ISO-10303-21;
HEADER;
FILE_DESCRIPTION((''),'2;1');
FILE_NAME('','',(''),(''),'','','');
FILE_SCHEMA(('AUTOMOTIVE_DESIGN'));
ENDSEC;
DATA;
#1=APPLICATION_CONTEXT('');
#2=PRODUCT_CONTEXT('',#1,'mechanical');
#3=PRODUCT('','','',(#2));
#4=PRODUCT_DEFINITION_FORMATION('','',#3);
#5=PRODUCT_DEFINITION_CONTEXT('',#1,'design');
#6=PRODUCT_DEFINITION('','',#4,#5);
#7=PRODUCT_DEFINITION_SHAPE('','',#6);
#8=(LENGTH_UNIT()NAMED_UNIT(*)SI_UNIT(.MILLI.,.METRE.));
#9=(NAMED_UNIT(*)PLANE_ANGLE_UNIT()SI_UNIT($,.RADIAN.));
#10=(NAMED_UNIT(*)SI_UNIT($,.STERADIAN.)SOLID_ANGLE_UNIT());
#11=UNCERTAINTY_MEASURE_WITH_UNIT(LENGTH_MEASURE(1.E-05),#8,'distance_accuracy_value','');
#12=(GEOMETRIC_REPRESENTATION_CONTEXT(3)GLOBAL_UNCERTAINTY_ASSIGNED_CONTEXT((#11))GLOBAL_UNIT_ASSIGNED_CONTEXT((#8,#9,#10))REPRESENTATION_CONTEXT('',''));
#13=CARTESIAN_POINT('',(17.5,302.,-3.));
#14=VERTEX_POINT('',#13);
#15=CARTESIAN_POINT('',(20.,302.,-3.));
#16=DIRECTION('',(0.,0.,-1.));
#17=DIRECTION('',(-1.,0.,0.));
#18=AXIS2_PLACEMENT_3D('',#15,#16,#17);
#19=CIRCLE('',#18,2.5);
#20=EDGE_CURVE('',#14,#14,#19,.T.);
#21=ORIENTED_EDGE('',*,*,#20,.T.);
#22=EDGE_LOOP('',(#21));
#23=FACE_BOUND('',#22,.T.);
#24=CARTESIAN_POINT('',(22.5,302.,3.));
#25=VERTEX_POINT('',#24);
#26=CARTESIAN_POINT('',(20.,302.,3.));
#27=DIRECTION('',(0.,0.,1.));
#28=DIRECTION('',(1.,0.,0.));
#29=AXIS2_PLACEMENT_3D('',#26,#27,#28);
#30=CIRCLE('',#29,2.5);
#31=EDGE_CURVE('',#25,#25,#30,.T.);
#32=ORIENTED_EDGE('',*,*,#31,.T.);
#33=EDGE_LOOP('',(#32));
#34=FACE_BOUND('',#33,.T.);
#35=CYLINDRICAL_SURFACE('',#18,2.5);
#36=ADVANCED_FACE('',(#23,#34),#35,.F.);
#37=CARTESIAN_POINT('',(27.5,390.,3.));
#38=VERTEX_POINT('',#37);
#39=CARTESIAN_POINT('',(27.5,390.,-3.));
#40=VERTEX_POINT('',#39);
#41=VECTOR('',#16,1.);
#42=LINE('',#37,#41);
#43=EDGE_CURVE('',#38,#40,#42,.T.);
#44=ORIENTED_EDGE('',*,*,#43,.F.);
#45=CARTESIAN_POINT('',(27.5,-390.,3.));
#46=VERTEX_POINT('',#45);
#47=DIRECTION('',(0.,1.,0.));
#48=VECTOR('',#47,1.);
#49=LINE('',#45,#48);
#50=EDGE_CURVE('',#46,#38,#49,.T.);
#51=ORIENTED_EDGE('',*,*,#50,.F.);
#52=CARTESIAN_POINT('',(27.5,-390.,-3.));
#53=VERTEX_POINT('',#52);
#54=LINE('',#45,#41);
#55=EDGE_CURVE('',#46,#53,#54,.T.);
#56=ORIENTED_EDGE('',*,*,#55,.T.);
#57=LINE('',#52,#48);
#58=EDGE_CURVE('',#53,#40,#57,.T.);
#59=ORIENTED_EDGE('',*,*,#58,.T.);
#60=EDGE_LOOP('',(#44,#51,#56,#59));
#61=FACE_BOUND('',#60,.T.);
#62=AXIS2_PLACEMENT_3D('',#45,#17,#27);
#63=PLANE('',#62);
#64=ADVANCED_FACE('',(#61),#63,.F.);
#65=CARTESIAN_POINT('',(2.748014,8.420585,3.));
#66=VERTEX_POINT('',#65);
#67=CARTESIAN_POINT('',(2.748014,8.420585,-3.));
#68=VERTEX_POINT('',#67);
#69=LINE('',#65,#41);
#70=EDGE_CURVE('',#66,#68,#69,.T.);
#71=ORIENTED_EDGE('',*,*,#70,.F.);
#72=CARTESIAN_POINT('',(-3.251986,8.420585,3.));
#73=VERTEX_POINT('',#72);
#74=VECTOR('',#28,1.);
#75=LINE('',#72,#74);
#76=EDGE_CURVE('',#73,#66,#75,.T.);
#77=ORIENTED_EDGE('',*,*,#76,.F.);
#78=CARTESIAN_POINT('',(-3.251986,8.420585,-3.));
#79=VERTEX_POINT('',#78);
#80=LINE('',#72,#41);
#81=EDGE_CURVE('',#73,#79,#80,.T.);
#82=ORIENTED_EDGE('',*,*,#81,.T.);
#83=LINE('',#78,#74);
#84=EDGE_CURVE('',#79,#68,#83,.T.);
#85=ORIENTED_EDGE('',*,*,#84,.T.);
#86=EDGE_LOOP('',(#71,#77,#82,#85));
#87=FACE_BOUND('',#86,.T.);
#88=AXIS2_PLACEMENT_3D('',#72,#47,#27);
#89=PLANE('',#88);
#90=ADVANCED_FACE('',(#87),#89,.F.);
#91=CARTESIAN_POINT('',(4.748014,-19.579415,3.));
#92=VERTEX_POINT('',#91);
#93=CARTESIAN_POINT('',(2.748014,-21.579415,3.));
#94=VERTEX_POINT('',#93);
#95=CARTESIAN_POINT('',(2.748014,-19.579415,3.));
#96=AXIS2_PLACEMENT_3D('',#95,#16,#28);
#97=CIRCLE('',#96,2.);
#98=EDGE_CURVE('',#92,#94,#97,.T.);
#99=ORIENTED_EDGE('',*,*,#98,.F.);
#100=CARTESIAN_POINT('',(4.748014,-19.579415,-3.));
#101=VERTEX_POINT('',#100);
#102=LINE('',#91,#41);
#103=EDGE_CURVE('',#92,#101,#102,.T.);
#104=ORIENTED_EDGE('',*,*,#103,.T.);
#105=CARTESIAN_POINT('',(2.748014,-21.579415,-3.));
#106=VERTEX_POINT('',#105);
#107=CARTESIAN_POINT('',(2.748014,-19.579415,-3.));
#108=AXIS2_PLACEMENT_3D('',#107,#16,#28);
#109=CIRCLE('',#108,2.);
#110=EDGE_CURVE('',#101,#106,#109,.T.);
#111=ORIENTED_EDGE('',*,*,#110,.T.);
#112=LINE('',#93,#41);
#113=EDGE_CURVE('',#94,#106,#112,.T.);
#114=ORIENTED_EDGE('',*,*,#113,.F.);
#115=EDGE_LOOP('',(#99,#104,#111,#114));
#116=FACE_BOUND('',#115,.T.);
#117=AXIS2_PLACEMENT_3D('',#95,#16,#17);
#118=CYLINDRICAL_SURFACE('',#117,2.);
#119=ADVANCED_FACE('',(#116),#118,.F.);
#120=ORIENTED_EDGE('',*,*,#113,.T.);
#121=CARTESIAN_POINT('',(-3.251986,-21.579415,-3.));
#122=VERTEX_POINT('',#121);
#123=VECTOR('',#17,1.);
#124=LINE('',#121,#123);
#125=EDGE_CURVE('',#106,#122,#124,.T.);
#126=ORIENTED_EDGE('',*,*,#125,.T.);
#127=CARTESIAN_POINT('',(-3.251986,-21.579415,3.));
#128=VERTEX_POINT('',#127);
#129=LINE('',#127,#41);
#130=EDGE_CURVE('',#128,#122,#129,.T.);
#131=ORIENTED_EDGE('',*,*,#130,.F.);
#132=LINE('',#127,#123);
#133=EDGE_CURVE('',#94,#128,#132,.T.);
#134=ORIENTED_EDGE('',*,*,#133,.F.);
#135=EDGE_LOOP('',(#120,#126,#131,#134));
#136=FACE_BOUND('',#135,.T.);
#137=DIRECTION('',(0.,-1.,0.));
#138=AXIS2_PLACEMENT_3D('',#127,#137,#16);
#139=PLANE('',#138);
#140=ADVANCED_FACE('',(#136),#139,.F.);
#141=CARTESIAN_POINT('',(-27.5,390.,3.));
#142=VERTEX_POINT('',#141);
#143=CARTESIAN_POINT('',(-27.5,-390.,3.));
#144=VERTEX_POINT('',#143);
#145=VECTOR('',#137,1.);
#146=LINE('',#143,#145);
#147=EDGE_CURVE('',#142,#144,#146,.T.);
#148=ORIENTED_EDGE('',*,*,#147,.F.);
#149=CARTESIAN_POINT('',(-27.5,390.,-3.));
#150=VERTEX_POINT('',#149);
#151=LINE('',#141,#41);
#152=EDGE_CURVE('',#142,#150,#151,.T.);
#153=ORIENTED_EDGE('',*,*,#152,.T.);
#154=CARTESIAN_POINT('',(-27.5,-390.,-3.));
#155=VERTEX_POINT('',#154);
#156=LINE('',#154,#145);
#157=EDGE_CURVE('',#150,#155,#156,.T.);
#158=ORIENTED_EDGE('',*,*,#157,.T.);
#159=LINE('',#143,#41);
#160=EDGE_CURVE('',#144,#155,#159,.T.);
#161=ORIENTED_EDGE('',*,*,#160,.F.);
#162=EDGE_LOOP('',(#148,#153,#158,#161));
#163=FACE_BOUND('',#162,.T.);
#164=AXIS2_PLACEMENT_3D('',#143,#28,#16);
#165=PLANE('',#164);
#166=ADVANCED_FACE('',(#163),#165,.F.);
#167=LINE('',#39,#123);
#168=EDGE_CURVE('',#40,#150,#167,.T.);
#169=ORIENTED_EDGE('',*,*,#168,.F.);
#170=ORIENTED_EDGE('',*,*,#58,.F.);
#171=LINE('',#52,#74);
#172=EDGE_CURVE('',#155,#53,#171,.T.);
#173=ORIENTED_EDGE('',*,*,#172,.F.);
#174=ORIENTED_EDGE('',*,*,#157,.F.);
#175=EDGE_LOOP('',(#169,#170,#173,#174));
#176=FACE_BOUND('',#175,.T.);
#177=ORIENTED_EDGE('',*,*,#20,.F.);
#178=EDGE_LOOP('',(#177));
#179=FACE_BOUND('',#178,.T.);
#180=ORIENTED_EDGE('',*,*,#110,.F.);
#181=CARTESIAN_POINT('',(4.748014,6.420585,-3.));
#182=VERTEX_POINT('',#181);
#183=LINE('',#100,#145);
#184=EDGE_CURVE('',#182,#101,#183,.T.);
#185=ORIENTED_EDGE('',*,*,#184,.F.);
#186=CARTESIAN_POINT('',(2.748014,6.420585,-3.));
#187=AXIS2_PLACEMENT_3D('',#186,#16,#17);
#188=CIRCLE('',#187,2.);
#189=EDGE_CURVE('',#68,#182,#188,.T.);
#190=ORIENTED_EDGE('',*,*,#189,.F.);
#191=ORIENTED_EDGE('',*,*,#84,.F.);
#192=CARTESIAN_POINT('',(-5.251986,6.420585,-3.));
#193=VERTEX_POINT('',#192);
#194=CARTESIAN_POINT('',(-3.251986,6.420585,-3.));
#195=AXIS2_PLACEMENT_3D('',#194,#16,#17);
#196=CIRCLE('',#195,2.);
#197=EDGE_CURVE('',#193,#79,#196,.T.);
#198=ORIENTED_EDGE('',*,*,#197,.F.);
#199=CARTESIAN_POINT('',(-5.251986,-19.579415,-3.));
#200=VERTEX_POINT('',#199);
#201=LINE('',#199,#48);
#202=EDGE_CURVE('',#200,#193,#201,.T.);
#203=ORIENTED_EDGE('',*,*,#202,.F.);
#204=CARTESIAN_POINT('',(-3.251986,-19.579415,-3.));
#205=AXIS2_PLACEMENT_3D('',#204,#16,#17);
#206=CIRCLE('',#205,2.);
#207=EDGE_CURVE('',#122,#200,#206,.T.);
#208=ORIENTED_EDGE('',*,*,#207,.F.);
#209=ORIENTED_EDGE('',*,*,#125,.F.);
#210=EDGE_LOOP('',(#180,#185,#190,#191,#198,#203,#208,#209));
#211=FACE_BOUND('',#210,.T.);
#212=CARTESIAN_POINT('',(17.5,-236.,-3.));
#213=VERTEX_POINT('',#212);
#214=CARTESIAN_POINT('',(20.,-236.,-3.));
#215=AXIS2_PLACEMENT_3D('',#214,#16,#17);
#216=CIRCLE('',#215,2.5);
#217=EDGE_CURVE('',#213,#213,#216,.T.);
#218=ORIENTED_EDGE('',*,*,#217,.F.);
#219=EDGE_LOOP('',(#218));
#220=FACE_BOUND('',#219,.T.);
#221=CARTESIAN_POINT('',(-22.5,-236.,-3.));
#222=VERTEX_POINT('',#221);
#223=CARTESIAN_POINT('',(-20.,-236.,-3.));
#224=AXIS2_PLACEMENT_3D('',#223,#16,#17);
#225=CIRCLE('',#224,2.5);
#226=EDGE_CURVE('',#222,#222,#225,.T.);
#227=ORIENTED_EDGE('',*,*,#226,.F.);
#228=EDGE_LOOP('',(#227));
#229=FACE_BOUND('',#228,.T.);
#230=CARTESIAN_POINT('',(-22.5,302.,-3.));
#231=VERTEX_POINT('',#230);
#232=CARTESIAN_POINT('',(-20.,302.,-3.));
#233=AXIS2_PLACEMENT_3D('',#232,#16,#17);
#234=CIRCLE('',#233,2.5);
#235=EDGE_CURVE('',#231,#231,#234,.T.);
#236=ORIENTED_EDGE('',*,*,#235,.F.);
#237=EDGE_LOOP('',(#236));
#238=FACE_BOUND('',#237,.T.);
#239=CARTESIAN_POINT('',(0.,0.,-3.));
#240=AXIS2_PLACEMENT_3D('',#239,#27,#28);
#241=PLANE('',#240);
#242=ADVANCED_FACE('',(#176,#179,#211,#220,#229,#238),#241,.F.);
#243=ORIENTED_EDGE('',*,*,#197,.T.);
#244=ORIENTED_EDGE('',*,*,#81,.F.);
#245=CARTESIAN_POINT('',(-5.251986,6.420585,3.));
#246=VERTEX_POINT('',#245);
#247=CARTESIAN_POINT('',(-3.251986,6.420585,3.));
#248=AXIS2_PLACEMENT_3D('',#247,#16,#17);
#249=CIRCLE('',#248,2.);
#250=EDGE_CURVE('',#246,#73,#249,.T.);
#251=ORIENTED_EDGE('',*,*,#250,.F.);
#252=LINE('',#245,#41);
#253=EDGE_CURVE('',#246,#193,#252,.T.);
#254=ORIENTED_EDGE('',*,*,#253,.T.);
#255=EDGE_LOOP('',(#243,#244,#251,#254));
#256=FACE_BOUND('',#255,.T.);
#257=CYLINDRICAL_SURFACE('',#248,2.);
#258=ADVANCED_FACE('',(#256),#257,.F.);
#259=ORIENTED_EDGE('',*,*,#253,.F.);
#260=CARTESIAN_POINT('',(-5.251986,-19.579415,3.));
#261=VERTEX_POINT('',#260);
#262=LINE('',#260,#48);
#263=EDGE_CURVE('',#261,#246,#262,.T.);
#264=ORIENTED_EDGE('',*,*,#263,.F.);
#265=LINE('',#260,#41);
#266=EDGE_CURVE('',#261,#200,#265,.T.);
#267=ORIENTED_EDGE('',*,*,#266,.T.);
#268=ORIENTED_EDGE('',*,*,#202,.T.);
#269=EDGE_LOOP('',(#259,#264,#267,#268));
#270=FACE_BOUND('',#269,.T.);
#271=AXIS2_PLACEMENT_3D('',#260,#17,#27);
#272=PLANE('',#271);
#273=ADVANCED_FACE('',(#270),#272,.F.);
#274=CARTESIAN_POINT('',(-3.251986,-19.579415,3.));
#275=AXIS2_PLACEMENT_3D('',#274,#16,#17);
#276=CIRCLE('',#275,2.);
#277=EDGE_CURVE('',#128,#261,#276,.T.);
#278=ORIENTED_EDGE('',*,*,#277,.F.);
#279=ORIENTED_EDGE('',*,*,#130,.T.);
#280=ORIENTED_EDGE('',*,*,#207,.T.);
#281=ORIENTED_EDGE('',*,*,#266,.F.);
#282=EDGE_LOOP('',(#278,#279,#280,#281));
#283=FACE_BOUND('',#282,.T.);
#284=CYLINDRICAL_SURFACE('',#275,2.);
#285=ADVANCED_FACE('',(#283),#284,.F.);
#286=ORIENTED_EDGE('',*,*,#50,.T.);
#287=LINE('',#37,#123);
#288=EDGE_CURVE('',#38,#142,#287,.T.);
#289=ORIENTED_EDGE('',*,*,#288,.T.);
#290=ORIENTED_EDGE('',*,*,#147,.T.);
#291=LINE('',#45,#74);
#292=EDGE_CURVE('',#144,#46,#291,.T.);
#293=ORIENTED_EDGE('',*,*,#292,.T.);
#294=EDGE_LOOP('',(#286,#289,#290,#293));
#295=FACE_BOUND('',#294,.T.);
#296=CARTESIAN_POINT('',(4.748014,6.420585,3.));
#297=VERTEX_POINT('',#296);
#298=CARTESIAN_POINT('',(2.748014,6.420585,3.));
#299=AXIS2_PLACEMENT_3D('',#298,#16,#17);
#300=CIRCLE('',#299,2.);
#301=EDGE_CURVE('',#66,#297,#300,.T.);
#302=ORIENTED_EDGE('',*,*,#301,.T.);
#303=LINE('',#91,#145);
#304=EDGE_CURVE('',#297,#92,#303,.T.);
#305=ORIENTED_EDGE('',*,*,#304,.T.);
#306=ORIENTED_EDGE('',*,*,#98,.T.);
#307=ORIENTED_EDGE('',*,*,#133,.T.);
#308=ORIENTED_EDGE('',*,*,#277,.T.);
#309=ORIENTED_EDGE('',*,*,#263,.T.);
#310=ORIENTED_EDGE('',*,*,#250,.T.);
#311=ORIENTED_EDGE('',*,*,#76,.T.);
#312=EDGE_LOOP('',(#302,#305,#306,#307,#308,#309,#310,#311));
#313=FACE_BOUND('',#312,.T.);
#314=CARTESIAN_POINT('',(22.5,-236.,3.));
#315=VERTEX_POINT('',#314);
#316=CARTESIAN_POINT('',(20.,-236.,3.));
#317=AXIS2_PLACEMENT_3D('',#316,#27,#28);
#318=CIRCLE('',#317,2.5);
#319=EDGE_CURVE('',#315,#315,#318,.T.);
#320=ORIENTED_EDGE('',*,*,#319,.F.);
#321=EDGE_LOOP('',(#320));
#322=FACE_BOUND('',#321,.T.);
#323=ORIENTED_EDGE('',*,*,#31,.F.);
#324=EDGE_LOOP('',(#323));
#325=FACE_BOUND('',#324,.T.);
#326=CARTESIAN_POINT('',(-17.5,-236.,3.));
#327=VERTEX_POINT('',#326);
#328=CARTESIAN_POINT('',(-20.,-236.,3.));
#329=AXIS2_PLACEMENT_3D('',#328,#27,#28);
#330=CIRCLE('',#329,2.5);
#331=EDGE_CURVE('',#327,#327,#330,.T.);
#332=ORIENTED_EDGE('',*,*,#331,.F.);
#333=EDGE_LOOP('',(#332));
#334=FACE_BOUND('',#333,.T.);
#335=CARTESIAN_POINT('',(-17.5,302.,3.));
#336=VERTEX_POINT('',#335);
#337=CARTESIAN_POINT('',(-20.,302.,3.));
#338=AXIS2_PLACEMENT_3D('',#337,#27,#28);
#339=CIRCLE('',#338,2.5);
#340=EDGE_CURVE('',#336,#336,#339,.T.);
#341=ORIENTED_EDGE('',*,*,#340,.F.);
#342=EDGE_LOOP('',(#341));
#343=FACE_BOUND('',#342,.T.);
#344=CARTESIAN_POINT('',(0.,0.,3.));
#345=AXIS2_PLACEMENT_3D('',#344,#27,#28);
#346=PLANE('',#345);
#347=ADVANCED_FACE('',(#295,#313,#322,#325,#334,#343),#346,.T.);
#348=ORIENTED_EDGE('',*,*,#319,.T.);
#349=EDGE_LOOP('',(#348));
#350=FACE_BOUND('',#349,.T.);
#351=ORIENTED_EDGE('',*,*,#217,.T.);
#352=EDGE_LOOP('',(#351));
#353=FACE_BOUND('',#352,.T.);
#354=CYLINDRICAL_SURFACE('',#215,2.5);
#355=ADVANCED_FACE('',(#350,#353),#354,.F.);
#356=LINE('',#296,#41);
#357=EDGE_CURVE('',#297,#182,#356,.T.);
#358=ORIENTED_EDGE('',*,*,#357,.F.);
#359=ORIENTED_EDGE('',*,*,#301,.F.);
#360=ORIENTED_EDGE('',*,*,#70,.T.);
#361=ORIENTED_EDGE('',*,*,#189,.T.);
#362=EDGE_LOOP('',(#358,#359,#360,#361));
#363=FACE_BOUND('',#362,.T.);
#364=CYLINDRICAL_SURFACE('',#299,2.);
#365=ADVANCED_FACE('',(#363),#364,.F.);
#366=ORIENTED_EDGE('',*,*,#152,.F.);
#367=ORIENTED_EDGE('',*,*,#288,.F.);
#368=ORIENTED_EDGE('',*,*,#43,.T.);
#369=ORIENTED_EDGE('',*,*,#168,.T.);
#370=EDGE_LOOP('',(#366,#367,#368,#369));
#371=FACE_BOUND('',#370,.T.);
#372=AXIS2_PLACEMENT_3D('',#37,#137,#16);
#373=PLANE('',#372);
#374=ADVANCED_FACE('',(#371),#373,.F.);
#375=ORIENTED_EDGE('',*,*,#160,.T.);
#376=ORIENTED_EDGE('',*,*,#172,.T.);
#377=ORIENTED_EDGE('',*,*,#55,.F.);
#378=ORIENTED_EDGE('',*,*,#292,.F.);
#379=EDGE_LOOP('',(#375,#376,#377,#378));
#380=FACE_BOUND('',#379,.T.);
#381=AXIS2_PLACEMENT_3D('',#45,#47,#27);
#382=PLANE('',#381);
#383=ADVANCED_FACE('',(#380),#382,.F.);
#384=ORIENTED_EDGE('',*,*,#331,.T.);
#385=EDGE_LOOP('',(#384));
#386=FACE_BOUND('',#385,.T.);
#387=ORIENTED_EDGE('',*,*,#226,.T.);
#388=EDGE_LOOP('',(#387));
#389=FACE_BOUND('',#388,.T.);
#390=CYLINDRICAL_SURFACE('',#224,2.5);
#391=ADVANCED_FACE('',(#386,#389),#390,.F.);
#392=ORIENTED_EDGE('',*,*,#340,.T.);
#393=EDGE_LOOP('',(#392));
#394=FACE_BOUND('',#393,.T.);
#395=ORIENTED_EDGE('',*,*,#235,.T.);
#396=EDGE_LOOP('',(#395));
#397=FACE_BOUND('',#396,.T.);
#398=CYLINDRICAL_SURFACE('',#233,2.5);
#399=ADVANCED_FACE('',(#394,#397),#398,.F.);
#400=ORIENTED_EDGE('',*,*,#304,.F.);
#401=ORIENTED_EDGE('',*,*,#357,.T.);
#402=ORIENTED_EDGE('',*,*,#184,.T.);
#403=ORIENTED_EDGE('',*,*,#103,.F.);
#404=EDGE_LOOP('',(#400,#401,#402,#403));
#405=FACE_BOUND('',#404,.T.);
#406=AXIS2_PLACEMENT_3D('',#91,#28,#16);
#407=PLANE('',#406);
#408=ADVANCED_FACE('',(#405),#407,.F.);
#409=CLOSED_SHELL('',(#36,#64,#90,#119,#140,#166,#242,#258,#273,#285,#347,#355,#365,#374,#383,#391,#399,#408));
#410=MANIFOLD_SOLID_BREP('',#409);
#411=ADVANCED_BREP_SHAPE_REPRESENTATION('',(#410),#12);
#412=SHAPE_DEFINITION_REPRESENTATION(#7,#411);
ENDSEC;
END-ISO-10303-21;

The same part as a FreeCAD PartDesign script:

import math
import FreeCAD as App
import Part
import Sketcher

V = App.Vector
Q = App.Units.Quantity


def add_polygon(sketch, points):
    """Adds a closed chain of lines whose ends are joined by coincident constraints."""
    first, n = sketch.GeometryCount, len(points)
    for a, b in zip(points, points[1:] + points[:1]):
        sketch.addGeometry(Part.LineSegment(App.Vector(*a, 0), App.Vector(*b, 0)), False)
    for i in range(n):
        sketch.addConstraint(Sketcher.Constraint("Coincident", first + i, 2, first + (i + 1) % n, 1))

doc = App.newDocument("Part")
params = doc.addObject("Spreadsheet::Sheet", "Params")
for row, (alias, value) in enumerate([
    ("sketch1_width", "55 mm"),
    ("sketch1_height", "780 mm"),
    ("pad1_length", "6 mm"),
    ("sketch2_radius", "2 mm"),
    ("sketch2_width", "6 mm"),
    ("sketch2_height", "26 mm"),
    ("sketch3_diameter", "5 mm"),
    ("hole_diameter", "5 mm"),
    ("hole_depth", "17 mm"),
], start=1):
    params.set(f"A{row}", alias)
    params.set(f"B{row}", "=" + value)
    params.setAlias(f"B{row}", alias)

body = doc.addObject("PartDesign::Body", "Body")

sketch1 = body.newObject("Sketcher::SketchObject", "Sketch")
sketch1.AttachmentSupport = (doc.getObject("XY_Plane"), [""])
sketch1.MapMode = "FlatFace"
add_polygon(sketch1, [(-28, 390), (-28, -390), (28, -390), (28, 390)])
sketch1.addConstraint(Sketcher.Constraint("Vertical", 0))
sketch1.addConstraint(Sketcher.Constraint("Horizontal", 1))
sketch1.addConstraint(Sketcher.Constraint("Vertical", 2))
sketch1.addConstraint(Sketcher.Constraint("Horizontal", 3))
sketch1.addConstraint(Sketcher.Constraint("Symmetric", 0, 2, 2, 2, -1, 1))
sketch1.addConstraint(Sketcher.Constraint("DistanceX", 1, 1, 1, 2, Q("55 mm")))
sketch1.addConstraint(Sketcher.Constraint("DistanceY", 0, 2, 0, 1, Q("780 mm")))
sketch1.setExpression("Constraints[9]", "Params.sketch1_width")
sketch1.setExpression("Constraints[10]", "Params.sketch1_height")
pad1 = body.newObject("PartDesign::Pad", "Pad")
pad1.Profile = sketch1
pad1.setExpression("Length", "Params.pad1_length")
pad1.Midplane = True

sketch2 = body.newObject("Sketcher::SketchObject", "Sketch001")
sketch2.AttachmentSupport = (doc.getObject("XY_Plane"), [""])
sketch2.MapMode = "FlatFace"
sketch2.AttachmentOffset = App.Placement(V(0, 0, -3), App.Rotation())
sketch2.addGeometry(Part.LineSegment(V(2.7, -21.6, 0), V(-3.3, -21.6, 0)), False)
sketch2.addGeometry(Part.ArcOfCircle(Part.Circle(V(-3.3, -19.6, 0), V(0, 0, 1), 2), math.radians(180), math.radians(270)), False)
sketch2.addGeometry(Part.LineSegment(V(-5.3, -19.6, 0), V(-5.3, 6.4, 0)), False)
sketch2.addGeometry(Part.ArcOfCircle(Part.Circle(V(-3.3, 6.4, 0), V(0, 0, 1), 2), math.radians(90), math.radians(180)), False)
sketch2.addGeometry(Part.LineSegment(V(-3.3, 8.4, 0), V(2.7, 8.4, 0)), False)
sketch2.addGeometry(Part.ArcOfCircle(Part.Circle(V(2.7, 6.4, 0), V(0, 0, 1), 2), math.radians(0), math.radians(90)), False)
sketch2.addGeometry(Part.LineSegment(V(4.7, 6.4, 0), V(4.7, -19.6, 0)), False)
sketch2.addGeometry(Part.ArcOfCircle(Part.Circle(V(2.7, -19.6, 0), V(0, 0, 1), 2), math.radians(-90), math.radians(0)), False)
sketch2.addConstraint(Sketcher.Constraint("Tangent", 0, 2, 1, 2))
sketch2.addConstraint(Sketcher.Constraint("Tangent", 1, 1, 2, 1))
sketch2.addConstraint(Sketcher.Constraint("Tangent", 2, 2, 3, 2))
sketch2.addConstraint(Sketcher.Constraint("Tangent", 3, 1, 4, 1))
sketch2.addConstraint(Sketcher.Constraint("Tangent", 4, 2, 5, 2))
sketch2.addConstraint(Sketcher.Constraint("Tangent", 5, 1, 6, 1))
sketch2.addConstraint(Sketcher.Constraint("Tangent", 6, 2, 7, 2))
sketch2.addConstraint(Sketcher.Constraint("Tangent", 7, 1, 0, 1))
sketch2.addConstraint(Sketcher.Constraint("Horizontal", 0))
sketch2.addConstraint(Sketcher.Constraint("Vertical", 2))
sketch2.addConstraint(Sketcher.Constraint("Horizontal", 4))
sketch2.addConstraint(Sketcher.Constraint("Vertical", 6))
sketch2.addConstraint(Sketcher.Constraint("Equal", 1, 3))
sketch2.addConstraint(Sketcher.Constraint("Equal", 3, 5))
sketch2.addConstraint(Sketcher.Constraint("Equal", 5, 7))
sketch2.addConstraint(Sketcher.Constraint("Radius", 1, Q("2 mm")))
sketch2.addConstraint(Sketcher.Constraint("DistanceX", 0, 2, 0, 1, Q("6 mm")))
sketch2.addConstraint(Sketcher.Constraint("DistanceY", 2, 1, 2, 2, Q("26 mm")))
sketch2.addConstraint(Sketcher.Constraint("DistanceX", 1, 3, -1, 1, Q("3.251986 mm")))
sketch2.addConstraint(Sketcher.Constraint("DistanceY", 1, 3, -1, 1, Q("19.579415 mm")))
sketch2.setExpression("Constraints[15]", "Params.sketch2_radius")
sketch2.setExpression("Constraints[16]", "Params.sketch2_width")
sketch2.setExpression("Constraints[17]", "Params.sketch2_height")
pocket1 = body.newObject("PartDesign::Pocket", "Pocket")
pocket1.Profile = sketch2
pocket1.Type = "ThroughAll"
pocket1.Reversed = True

sketch3 = body.newObject("Sketcher::SketchObject", "Sketch002")
sketch3.AttachmentSupport = (doc.getObject("XY_Plane"), [""])
sketch3.MapMode = "FlatFace"
sketch3.AttachmentOffset = App.Placement(V(0, 0, -3), App.Rotation())
sketch3.addGeometry(Part.Circle(V(-20, 302, 0), V(0, 0, 1), 2.5), False)
sketch3.addGeometry(Part.Circle(V(20, 302, 0), V(0, 0, 1), 2.5), False)
sketch3.addGeometry(Part.Circle(V(-20, -236, 0), V(0, 0, 1), 2.5), False)
sketch3.addGeometry(Part.Circle(V(20, -236, 0), V(0, 0, 1), 2.5), False)
sketch3.addConstraint(Sketcher.Constraint("Equal", 0, 1))
sketch3.addConstraint(Sketcher.Constraint("Equal", 1, 2))
sketch3.addConstraint(Sketcher.Constraint("Equal", 2, 3))
sketch3.addConstraint(Sketcher.Constraint("Symmetric", 0, 3, 1, 3, -2))
sketch3.addConstraint(Sketcher.Constraint("Symmetric", 2, 3, 3, 3, -2))
sketch3.addConstraint(Sketcher.Constraint("Vertical", 0, 3, 2, 3))
sketch3.addConstraint(Sketcher.Constraint("Diameter", 0, Q("5 mm")))
sketch3.addConstraint(Sketcher.Constraint("DistanceX", 0, 3, -1, 1, Q("20 mm")))
sketch3.addConstraint(Sketcher.Constraint("DistanceY", -1, 1, 0, 3, Q("302 mm")))
sketch3.addConstraint(Sketcher.Constraint("DistanceY", 2, 3, -1, 1, Q("236 mm")))
sketch3.setExpression("Constraints[6]", "Params.sketch3_diameter")
doc.recompute()
hole = body.newObject("PartDesign::Hole", "Hole")
hole.Profile = sketch3
hole.ThreadType = "None"
hole.setExpression("Diameter", "Params.hole_diameter")
hole.DepthType = "Dimension"
hole.setExpression("Depth", "Params.hole_depth")
hole.DrillPoint = "Angled"
hole.DrillPointAngle = 118
hole.Reversed = True

doc.recompute()
